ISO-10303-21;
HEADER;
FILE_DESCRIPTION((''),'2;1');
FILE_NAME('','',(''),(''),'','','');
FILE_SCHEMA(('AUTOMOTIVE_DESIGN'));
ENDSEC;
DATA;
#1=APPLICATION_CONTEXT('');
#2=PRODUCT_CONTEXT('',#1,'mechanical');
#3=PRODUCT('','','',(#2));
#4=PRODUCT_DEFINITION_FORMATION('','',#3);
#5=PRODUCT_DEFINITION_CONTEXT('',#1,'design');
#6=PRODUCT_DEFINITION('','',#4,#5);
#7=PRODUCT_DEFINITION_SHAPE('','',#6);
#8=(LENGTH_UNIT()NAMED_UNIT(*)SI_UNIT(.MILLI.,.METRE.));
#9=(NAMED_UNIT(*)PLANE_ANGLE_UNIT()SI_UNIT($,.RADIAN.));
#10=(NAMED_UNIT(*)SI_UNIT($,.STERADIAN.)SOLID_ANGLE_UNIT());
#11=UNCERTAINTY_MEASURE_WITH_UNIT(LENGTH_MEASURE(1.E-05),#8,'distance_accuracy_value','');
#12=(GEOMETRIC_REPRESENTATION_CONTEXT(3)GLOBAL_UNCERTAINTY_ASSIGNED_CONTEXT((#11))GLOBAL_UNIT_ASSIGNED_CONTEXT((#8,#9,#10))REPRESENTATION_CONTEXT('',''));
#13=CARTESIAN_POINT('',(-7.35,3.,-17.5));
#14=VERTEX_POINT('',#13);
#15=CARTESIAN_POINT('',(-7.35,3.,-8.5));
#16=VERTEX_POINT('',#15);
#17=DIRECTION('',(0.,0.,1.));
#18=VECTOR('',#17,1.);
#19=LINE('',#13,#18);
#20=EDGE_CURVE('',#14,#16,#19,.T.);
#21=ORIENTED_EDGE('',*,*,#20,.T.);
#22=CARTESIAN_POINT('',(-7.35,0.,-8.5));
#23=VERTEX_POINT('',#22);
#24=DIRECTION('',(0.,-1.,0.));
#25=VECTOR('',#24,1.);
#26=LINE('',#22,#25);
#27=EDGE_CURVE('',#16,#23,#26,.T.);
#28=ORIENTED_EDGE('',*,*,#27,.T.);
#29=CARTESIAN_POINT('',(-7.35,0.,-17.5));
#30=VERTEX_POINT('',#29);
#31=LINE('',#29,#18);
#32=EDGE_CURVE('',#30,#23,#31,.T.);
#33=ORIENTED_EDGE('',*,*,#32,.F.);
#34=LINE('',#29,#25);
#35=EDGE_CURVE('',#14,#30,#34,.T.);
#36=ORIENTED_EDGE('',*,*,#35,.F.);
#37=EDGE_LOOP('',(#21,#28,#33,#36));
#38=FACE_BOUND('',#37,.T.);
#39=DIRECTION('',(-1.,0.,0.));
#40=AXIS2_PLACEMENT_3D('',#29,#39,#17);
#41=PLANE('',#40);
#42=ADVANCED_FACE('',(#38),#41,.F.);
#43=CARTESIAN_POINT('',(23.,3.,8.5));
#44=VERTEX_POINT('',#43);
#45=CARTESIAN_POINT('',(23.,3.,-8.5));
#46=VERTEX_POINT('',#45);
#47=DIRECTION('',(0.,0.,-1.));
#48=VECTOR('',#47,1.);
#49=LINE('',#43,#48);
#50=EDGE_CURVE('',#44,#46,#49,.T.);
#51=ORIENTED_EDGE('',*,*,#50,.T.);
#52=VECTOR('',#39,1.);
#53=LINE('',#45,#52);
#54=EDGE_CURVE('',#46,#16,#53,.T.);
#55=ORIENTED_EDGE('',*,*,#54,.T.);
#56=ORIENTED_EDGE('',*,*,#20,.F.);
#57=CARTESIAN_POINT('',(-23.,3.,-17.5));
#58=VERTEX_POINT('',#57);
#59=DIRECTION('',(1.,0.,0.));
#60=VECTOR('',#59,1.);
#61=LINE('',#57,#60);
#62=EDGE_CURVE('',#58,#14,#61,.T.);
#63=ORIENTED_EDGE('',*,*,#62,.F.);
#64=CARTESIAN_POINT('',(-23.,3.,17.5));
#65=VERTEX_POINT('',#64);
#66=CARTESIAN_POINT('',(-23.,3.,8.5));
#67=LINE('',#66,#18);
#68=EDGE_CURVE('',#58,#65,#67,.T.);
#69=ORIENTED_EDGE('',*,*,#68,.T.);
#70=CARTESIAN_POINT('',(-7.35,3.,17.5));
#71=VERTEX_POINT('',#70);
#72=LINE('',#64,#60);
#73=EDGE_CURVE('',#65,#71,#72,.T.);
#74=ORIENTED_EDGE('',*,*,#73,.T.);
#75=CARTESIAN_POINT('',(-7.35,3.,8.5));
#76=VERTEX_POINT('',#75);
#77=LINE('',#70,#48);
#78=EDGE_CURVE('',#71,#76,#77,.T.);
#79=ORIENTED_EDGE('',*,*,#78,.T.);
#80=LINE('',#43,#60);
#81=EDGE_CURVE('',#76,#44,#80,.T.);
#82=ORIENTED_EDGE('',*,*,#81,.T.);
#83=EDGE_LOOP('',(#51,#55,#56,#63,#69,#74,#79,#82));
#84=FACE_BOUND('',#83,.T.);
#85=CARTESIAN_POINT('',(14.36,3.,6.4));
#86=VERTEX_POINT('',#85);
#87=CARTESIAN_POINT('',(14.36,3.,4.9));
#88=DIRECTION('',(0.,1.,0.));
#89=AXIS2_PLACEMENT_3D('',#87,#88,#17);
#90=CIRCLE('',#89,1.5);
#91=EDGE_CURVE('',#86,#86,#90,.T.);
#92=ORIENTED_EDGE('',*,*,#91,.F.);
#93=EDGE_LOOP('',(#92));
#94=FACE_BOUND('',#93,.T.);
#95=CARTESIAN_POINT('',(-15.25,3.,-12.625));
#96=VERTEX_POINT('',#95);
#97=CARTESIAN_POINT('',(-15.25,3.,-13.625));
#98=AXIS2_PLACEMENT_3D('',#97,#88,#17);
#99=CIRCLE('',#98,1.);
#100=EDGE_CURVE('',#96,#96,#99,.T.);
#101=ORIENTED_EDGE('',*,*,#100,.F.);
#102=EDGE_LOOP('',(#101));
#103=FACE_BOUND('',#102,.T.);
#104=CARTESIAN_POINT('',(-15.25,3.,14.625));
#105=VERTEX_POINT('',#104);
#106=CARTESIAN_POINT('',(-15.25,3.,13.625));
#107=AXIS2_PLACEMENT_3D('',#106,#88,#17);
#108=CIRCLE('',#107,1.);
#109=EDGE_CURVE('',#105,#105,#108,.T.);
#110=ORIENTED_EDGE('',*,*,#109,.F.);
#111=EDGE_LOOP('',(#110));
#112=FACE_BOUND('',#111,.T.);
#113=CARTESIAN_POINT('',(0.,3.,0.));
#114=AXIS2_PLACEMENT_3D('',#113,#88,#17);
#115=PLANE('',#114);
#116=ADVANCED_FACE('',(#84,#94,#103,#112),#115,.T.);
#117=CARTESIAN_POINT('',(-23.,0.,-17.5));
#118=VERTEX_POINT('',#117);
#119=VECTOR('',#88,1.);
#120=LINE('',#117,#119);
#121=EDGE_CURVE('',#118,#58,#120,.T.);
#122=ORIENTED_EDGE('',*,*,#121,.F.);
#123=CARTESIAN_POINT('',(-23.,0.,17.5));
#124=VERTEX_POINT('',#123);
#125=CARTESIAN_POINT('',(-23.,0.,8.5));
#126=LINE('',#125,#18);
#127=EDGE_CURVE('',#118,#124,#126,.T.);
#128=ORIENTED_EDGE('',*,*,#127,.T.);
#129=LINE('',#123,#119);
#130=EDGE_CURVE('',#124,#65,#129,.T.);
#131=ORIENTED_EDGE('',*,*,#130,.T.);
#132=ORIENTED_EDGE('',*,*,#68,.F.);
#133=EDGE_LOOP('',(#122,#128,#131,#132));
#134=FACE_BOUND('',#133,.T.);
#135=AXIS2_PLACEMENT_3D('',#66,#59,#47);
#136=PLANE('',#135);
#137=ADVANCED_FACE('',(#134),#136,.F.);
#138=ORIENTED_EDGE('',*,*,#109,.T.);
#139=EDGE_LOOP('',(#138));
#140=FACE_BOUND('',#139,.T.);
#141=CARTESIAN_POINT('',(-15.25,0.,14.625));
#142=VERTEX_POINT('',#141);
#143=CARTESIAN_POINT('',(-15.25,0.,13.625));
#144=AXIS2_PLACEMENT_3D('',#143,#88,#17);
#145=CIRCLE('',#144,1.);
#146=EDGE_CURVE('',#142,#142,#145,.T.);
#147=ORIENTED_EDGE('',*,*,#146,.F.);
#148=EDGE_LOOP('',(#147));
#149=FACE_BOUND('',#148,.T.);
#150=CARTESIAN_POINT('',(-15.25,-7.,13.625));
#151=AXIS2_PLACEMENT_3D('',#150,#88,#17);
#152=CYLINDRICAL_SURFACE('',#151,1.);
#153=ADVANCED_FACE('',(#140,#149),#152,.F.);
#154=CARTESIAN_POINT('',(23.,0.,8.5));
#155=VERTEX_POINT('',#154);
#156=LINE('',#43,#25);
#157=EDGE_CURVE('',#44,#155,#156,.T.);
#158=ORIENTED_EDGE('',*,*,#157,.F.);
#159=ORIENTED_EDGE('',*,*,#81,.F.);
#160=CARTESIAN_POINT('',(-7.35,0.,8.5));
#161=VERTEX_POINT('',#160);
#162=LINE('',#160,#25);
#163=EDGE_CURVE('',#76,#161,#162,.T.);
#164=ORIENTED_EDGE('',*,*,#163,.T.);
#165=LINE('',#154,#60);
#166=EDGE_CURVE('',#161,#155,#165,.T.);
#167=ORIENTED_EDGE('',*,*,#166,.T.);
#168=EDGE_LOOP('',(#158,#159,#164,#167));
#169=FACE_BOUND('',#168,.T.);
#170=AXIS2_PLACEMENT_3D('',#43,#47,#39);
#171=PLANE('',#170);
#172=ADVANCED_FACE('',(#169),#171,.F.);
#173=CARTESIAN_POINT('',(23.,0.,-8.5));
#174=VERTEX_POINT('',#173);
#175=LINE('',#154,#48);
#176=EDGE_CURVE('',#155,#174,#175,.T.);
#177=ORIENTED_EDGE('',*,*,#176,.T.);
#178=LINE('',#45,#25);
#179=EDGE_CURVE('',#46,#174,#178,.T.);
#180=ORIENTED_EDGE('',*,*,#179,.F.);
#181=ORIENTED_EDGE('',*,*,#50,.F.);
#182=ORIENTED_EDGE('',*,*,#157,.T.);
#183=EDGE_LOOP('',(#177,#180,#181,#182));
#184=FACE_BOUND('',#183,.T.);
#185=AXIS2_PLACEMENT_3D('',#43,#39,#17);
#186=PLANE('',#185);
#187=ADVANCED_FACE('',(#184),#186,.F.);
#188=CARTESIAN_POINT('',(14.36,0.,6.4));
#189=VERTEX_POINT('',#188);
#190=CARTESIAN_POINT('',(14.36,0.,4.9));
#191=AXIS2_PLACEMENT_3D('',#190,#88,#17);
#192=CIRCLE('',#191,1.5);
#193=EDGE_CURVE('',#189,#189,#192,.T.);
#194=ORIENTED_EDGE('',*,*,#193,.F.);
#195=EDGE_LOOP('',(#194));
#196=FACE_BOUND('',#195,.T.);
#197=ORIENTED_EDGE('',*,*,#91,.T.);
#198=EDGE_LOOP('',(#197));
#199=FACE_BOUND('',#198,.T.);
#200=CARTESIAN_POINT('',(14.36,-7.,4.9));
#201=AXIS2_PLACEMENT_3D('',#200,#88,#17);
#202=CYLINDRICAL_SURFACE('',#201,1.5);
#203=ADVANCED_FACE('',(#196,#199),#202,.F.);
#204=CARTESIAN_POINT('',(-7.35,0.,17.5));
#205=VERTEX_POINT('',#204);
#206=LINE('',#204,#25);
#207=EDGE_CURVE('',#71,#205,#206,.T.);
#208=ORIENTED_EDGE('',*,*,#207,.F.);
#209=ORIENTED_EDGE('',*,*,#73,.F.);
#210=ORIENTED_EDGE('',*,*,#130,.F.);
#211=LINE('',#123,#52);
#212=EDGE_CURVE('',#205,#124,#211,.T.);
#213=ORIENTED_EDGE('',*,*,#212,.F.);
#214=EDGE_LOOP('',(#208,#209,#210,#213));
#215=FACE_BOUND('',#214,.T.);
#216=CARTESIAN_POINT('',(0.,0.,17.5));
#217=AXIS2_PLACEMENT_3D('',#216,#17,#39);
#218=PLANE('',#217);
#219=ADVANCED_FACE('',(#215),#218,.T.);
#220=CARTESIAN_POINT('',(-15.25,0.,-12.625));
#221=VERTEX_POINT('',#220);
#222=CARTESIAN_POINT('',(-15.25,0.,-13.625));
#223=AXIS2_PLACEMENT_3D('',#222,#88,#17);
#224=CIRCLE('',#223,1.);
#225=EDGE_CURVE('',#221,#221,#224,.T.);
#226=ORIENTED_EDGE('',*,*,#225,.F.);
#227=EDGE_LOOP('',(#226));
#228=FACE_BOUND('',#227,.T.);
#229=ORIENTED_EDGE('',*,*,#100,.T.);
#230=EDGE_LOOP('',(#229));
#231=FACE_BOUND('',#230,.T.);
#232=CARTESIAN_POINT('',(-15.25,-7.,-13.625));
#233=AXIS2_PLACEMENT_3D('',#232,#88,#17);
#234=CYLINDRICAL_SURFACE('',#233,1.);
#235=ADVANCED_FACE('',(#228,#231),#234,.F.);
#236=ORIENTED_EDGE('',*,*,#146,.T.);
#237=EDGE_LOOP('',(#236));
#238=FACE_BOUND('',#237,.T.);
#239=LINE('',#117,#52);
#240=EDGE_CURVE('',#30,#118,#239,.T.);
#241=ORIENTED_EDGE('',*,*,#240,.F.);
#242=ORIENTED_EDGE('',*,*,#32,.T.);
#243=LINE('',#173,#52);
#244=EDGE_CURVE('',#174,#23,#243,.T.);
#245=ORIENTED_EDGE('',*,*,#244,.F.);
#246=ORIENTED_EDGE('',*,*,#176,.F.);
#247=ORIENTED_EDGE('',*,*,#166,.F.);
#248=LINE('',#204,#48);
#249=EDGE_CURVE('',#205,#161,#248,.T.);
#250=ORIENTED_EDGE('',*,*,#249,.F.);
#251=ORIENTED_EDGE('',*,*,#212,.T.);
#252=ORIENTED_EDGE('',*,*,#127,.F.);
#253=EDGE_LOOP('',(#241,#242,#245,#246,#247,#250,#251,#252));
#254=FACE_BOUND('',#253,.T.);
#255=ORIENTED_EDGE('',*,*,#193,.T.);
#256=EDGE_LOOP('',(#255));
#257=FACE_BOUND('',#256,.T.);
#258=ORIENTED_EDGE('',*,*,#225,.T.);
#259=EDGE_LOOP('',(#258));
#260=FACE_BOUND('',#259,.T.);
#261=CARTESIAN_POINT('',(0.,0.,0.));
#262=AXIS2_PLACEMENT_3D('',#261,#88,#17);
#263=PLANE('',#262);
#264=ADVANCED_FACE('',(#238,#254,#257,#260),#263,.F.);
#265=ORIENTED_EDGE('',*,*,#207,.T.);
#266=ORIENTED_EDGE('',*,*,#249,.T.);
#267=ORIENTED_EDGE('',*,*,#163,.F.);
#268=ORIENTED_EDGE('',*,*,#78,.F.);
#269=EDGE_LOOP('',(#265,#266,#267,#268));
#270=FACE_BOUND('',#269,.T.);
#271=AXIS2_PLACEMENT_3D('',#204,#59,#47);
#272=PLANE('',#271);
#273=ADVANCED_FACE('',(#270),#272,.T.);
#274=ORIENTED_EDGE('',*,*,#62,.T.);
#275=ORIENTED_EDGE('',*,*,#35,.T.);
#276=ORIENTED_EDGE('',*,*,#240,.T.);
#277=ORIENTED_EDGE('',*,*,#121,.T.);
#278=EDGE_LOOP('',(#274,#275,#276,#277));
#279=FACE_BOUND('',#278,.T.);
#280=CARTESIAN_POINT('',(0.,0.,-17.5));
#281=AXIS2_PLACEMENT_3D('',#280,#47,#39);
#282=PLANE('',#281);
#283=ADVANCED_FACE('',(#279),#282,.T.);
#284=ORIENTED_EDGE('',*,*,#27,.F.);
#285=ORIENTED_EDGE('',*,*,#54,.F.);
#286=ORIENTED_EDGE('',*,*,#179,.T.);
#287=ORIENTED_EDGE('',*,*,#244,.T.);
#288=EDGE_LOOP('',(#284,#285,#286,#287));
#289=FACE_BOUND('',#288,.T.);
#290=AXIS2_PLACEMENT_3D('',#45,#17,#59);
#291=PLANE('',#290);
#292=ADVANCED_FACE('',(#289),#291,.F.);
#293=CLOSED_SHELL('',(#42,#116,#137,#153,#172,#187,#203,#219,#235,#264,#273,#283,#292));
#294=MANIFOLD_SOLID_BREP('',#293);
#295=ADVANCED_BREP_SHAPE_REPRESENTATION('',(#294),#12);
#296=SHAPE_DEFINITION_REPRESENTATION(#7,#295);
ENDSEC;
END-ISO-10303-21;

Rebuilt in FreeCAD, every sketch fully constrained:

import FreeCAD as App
import Part
import Sketcher
Q = App.Units.Quantity


def add_polygon(sketch, points):
    """Adds a closed chain of lines whose ends are joined by coincident constraints."""
    first, n = sketch.GeometryCount, len(points)
    for a, b in zip(points, points[1:] + points[:1]):
        sketch.addGeometry(Part.LineSegment(App.Vector(*a, 0), App.Vector(*b, 0)), False)
    for i in range(n):
        sketch.addConstraint(Sketcher.Constraint("Coincident", first + i, 2, first + (i + 1) % n, 1))

doc = App.newDocument("Part")
params = doc.addObject("Spreadsheet::Sheet", "Params")
for row, (alias, value) in enumerate([
    ("sketch1_width", "46 mm"),
    ("sketch1_height", "17 mm"),
    ("pad1_length", "3 mm"),
    ("sketch2_height", "3 mm"),
    ("sketch2_width", "15.65 mm"),
    ("pad2_length", "9 mm"),
    ("sketch3_diameter", "2 mm"),
    ("pocket1_length", "10 mm"),
    ("sketch4_diameter", "3 mm"),
    ("pocket2_length", "10 mm"),
], start=1):
    params.set(f"A{row}", alias)
    params.set(f"B{row}", "=" + value)
    params.setAlias(f"B{row}", alias)

body = doc.addObject("PartDesign::Body", "Body")

# Sketch on XZ plane
sketch1 = body.newObject("Sketcher::SketchObject", "Sketch")
sketch1.AttachmentSupport = (doc.getObject("XZ_Plane"), [""])
sketch1.MapMode = "FlatFace"
add_polygon(sketch1, [(-23, -8), (-23, 8), (23, 8), (23, -8)])  # lines 0-3
sketch1.addConstraint(Sketcher.Constraint("Vertical", 0))
sketch1.addConstraint(Sketcher.Constraint("Horizontal", 1))
sketch1.addConstraint(Sketcher.Constraint("Vertical", 2))
sketch1.addConstraint(Sketcher.Constraint("Horizontal", 3))
sketch1.addConstraint(Sketcher.Constraint("Symmetric", 0, 2, 2, 2, -1, 1))
sketch1.addConstraint(Sketcher.Constraint("DistanceX", 1, 1, 1, 2, Q("46 mm")))
sketch1.addConstraint(Sketcher.Constraint("DistanceY", 0, 1, 0, 2, Q("17 mm")))
sketch1.setExpression("Constraints[9]", "Params.sketch1_width")
sketch1.setExpression("Constraints[10]", "Params.sketch1_height")
pad1 = body.newObject("PartDesign::Pad", "Pad")
pad1.Profile = sketch1
pad1.setExpression("Length", "Params.pad1_length")
pad1.Reversed = True

# Sketch on XY plane
sketch2 = body.newObject("Sketcher::SketchObject", "Sketch001")
sketch2.AttachmentSupport = (doc.getObject("XY_Plane"), [""])
sketch2.MapMode = "FlatFace"
sketch2.AttachmentOffset = App.Placement(App.Vector(0, 0, -8.5), App.Rotation())
add_polygon(sketch2, [(-7.3, 3), (-7.3, 0), (-23, 0), (-23, 3)])  # lines 0-3
sketch2.addConstraint(Sketcher.Constraint("Vertical", 0))
sketch2.addConstraint(Sketcher.Constraint("Horizontal", 1))
sketch2.addConstraint(Sketcher.Constraint("Vertical", 2))
sketch2.addConstraint(Sketcher.Constraint("Horizontal", 3))
sketch2.addConstraint(Sketcher.Constraint("PointOnObject", 0, 2, -1))
sketch2.addConstraint(Sketcher.Constraint("DistanceY", 0, 2, 0, 1, Q("3 mm")))
sketch2.addConstraint(Sketcher.Constraint("DistanceX", 1, 2, -1, 1, Q("23 mm")))
sketch2.addConstraint(Sketcher.Constraint("DistanceX", 1, 2, 1, 1, Q("15.65 mm")))
sketch2.setExpression("Constraints[9]", "Params.sketch2_height")
sketch2.setExpression("Constraints[11]", "Params.sketch2_width")
pad2 = body.newObject("PartDesign::Pad", "Pad001")
pad2.Profile = sketch2
pad2.setExpression("Length", "Params.pad2_length")
pad2.Reversed = True
doc.recompute()

mirrored = body.newObject("PartDesign::Mirrored", "Mirrored")
mirrored.Originals = [pad2]
mirrored.MirrorPlane = (doc.getObject("XY_Plane"), [""])
body.Tip = mirrored

# Sketch on XZ plane
sketch3 = body.newObject("Sketcher::SketchObject", "Sketch002")
sketch3.AttachmentSupport = (doc.getObject("XZ_Plane"), [""])
sketch3.MapMode = "FlatFace"
sketch3.AttachmentOffset = App.Placement(App.Vector(0, 0, -3), App.Rotation())
sketch3.addGeometry(Part.Circle(App.Vector(-15.2, -13.6, 0), App.Vector(0, 0, 1), 1), False)
sketch3.addGeometry(Part.Circle(App.Vector(-15.2, 13.6, 0), App.Vector(0, 0, 1), 1), False)
sketch3.addConstraint(Sketcher.Constraint("Equal", 0, 1))
sketch3.addConstraint(Sketcher.Constraint("Symmetric", 0, 3, 1, 3, -1))
sketch3.addConstraint(Sketcher.Constraint("Diameter", 0, Q("2 mm")))
sketch3.addConstraint(Sketcher.Constraint("DistanceX", 0, 3, -1, 1, Q("15.25 mm")))
sketch3.addConstraint(Sketcher.Constraint("DistanceY", 0, 3, 1, 3, Q("27.25 mm")))
sketch3.setExpression("Constraints[2]", "Params.sketch3_diameter")
pocket1 = body.newObject("PartDesign::Pocket", "Pocket")
pocket1.Profile = sketch3
pocket1.setExpression("Length", "Params.pocket1_length")
pocket1.Reversed = True

# Sketch on XZ plane
sketch4 = body.newObject("Sketcher::SketchObject", "Sketch003")
sketch4.AttachmentSupport = (doc.getObject("XZ_Plane"), [""])
sketch4.MapMode = "FlatFace"
sketch4.AttachmentOffset = App.Placement(App.Vector(0, 0, -3), App.Rotation())
sketch4.addGeometry(Part.Circle(App.Vector(14.4, 4.9, 0), App.Vector(0, 0, 1), 1.5), False)
sketch4.addConstraint(Sketcher.Constraint("Diameter", 0, Q("3 mm")))
sketch4.addConstraint(Sketcher.Constraint("DistanceY", -1, 1, 0, 3, Q("4.9 mm")))
sketch4.addConstraint(Sketcher.Constraint("DistanceX", -1, 1, 0, 3, Q("14.36 mm")))
sketch4.setExpression("Constraints[0]", "Params.sketch4_diameter")
pocket2 = body.newObject("PartDesign::Pocket", "Pocket001")
pocket2.Profile = sketch4
pocket2.setExpression("Length", "Params.pocket2_length")
pocket2.Reversed = True

doc.recompute()
